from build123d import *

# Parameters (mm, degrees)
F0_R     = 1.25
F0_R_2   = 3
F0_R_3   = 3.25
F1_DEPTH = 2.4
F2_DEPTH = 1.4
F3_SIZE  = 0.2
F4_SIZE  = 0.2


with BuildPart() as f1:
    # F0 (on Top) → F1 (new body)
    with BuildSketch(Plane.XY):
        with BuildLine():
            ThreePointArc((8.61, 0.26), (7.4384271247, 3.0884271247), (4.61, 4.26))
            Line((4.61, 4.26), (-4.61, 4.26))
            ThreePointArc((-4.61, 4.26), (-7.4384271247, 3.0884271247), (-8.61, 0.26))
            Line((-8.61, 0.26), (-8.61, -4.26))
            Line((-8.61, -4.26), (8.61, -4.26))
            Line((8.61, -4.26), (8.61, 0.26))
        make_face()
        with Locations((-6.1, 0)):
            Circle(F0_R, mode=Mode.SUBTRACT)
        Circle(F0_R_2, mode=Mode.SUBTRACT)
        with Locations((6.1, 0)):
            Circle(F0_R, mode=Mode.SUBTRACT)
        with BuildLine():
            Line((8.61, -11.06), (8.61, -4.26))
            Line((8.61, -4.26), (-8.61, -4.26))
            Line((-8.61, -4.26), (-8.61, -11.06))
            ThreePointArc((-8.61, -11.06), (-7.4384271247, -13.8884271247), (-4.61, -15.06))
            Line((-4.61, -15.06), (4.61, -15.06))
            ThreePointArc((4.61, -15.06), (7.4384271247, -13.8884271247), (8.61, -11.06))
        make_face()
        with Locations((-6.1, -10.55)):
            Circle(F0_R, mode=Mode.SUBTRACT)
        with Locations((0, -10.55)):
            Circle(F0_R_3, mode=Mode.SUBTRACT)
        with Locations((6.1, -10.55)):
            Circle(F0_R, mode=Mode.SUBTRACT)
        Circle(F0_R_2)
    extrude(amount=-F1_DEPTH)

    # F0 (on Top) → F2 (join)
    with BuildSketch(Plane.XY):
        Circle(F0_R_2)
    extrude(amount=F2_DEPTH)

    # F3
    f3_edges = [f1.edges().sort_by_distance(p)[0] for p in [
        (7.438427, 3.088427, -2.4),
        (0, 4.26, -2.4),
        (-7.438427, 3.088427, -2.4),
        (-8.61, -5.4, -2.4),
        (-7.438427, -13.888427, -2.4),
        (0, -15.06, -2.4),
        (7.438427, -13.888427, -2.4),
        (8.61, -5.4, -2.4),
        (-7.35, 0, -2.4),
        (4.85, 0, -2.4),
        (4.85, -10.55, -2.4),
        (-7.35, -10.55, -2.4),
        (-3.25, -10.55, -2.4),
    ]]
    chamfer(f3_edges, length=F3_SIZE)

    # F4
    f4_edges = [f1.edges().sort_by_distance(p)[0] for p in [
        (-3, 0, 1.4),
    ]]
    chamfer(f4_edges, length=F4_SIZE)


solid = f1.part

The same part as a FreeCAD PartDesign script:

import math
import FreeCAD as App
import Part
import Sketcher
from FreeCAD import Vector
Q = App.Units.Quantity


def edges_at(feature, points):
    """Names of the edges that pass closest to the given points."""
    edges = feature.Shape.Edges
    near = lambda p: min(range(len(edges)), key=lambda i: edges[i].distToShape(Part.Vertex(*p))[0])
    return sorted({f"Edge{near(p) + 1}" for p in points})

doc = App.newDocument("Part")
body = doc.addObject("PartDesign::Body", "Body")

# Sketch on XY plane
sketch1 = body.newObject("Sketcher::SketchObject", "Sketch")
sketch1.AttachmentSupport = (doc.getObject("XY_Plane"), [""])
sketch1.MapMode = "FlatFace"
sketch1.addGeometry([
    Part.ArcOfCircle(Part.Circle(Vector(4.6, 0.3, 0), Vector(0, 0, 1), 4), math.radians(0), math.radians(90)),  # 0
    Part.LineSegment(Vector(4.6, 4.3, 0), Vector(-4.6, 4.3, 0)),  # 1
    Part.ArcOfCircle(Part.Circle(Vector(-4.6, 0.3, 0), Vector(0, 0, 1), 4), math.radians(90), math.radians(180)),  # 2
    Part.LineSegment(Vector(-8.6, 0.3, 0), Vector(-8.6, -11.1, 0)),  # 3
    Part.ArcOfCircle(Part.Circle(Vector(-4.6, -11.1, 0), Vector(0, 0, 1), 4), math.radians(180), math.radians(270)),  # 4
    Part.LineSegment(Vector(-4.6, -15.1, 0), Vector(4.6, -15.1, 0)),  # 5
    Part.ArcOfCircle(Part.Circle(Vector(4.6, -11.1, 0), Vector(0, 0, 1), 4), math.radians(-90), math.radians(0)),  # 6
    Part.LineSegment(Vector(8.6, -11.1, 0), Vector(8.6, 0.3, 0)),  # 7
    Part.Circle(Vector(-6.1, -10.6, 0), Vector(0, 0, 1), 1.2),  # 8
    Part.Circle(Vector(0, -10.6, 0), Vector(0, 0, 1), 3.2),  # 9
    Part.Circle(Vector(6.1, -10.6, 0), Vector(0, 0, 1), 1.2),  # 10
    Part.Circle(Vector(-6.1, 0, 0), Vector(0, 0, 1), 1.2),  # 11
    Part.Circle(Vector(6.1, 0, 0), Vector(0, 0, 1), 1.2),  # 12
], False)
sketch1.addConstraint([
    Sketcher.Constraint("Tangent", 0, 2, 1, 1),
    Sketcher.Constraint("Tangent", 1, 2, 2, 1),
    Sketcher.Constraint("Tangent", 2, 2, 3, 1),
    Sketcher.Constraint("Tangent", 3, 2, 4, 1),
    Sketcher.Constraint("Tangent", 4, 2, 5, 1),
    Sketcher.Constraint("Tangent", 5, 2, 6, 1),
    Sketcher.Constraint("Tangent", 6, 2, 7, 1),
    Sketcher.Constraint("Tangent", 7, 2, 0, 1),
    Sketcher.Constraint("Horizontal", 1),
    Sketcher.Constraint("Vertical", 3),
    Sketcher.Constraint("Horizontal", 5),
    Sketcher.Constraint("Vertical", 7),
    Sketcher.Constraint("Equal", 0, 2),
    Sketcher.Constraint("Equal", 2, 4),
    Sketcher.Constraint("Equal", 4, 6),
    Sketcher.Constraint("Equal", 8, 10),
    Sketcher.Constraint("Equal", 10, 11),
    Sketcher.Constraint("Equal", 11, 12),
    Sketcher.Constraint("Symmetric", 11, 3, 12, 3, -1, 1),
    Sketcher.Constraint("Symmetric", 8, 3, 10, 3, -2),
    Sketcher.Constraint("PointOnObject", 9, 3, -2),
    Sketcher.Constraint("PointOnObject", 11, 3, -1),
    Sketcher.Constraint("Horizontal", 8, 3, 9, 3),
    Sketcher.Constraint("Vertical", 8, 3, 11, 3),
    Sketcher.Constraint("Radius", 0, Q("4 mm")),
    Sketcher.Constraint("Diameter", 8, Q("2.5 mm")),
    Sketcher.Constraint("Diameter", 9, Q("6.5 mm")),
    Sketcher.Constraint("DistanceX", 1, 2, 1, 1, Q("9.22 mm")),
    Sketcher.Constraint("DistanceY", 3, 2, 3, 1, Q("11.32 mm")),
    Sketcher.Constraint("DistanceX", 8, 3, -1, 1, Q("6.1 mm")),
    Sketcher.Constraint("DistanceX", -1, 1, 0, 3, Q("4.61 mm")),
    Sketcher.Constraint("DistanceY", -1, 1, 0, 3, Q("0.26 mm")),
    Sketcher.Constraint("DistanceY", 8, 3, -1, 1, Q("10.55 mm")),
])
pad1 = body.newObject("PartDesign::Pad", "Pad")
pad1.Profile = sketch1
pad1.Length = 2.4
pad1.Reversed = True

# Sketch on XY plane
sketch2 = body.newObject("Sketcher::SketchObject", "Sketch001")
sketch2.AttachmentSupport = (doc.getObject("XY_Plane"), [""])
sketch2.MapMode = "FlatFace"
sketch2.addGeometry(Part.Circle(Vector(0, 0, 0), Vector(0, 0, 1), 3), False)
sketch2.addConstraint([
    Sketcher.Constraint("Coincident", 0, 3, -1, 1),
    Sketcher.Constraint("Diameter", 0, Q("6 mm")),
])
pad2 = body.newObject("PartDesign::Pad", "Pad001")
pad2.Profile = sketch2
pad2.Length = 1.4
doc.recompute()

chamfer = body.newObject("PartDesign::Chamfer", "Chamfer")
chamfer.Base = (pad2, edges_at(pad2, [
    (7.438, 3.088, -2.4),
    (0, 4.26, -2.4),
    (-7.438, 3.088, -2.4),
    (-8.61, -5.4, -2.4),
    (-7.438, -13.888, -2.4),
    (0, -15.06, -2.4),
    (7.438, -13.888, -2.4),
    (8.61, -5.4, -2.4),
    (-7.35, 0, -2.4),
    (4.85, 0, -2.4),
    (4.85, -10.55, -2.4),
    (-7.35, -10.55, -2.4),
    (-3.25, -10.55, -2.4),
]))
chamfer.Size = 0.2
doc.recompute()

chamfer2 = body.newObject("PartDesign::Chamfer", "Chamfer001")
chamfer2.Base = (chamfer, edges_at(chamfer, [(-3, 0, 1.4)]))
chamfer2.Size = 0.2

doc.recompute()
